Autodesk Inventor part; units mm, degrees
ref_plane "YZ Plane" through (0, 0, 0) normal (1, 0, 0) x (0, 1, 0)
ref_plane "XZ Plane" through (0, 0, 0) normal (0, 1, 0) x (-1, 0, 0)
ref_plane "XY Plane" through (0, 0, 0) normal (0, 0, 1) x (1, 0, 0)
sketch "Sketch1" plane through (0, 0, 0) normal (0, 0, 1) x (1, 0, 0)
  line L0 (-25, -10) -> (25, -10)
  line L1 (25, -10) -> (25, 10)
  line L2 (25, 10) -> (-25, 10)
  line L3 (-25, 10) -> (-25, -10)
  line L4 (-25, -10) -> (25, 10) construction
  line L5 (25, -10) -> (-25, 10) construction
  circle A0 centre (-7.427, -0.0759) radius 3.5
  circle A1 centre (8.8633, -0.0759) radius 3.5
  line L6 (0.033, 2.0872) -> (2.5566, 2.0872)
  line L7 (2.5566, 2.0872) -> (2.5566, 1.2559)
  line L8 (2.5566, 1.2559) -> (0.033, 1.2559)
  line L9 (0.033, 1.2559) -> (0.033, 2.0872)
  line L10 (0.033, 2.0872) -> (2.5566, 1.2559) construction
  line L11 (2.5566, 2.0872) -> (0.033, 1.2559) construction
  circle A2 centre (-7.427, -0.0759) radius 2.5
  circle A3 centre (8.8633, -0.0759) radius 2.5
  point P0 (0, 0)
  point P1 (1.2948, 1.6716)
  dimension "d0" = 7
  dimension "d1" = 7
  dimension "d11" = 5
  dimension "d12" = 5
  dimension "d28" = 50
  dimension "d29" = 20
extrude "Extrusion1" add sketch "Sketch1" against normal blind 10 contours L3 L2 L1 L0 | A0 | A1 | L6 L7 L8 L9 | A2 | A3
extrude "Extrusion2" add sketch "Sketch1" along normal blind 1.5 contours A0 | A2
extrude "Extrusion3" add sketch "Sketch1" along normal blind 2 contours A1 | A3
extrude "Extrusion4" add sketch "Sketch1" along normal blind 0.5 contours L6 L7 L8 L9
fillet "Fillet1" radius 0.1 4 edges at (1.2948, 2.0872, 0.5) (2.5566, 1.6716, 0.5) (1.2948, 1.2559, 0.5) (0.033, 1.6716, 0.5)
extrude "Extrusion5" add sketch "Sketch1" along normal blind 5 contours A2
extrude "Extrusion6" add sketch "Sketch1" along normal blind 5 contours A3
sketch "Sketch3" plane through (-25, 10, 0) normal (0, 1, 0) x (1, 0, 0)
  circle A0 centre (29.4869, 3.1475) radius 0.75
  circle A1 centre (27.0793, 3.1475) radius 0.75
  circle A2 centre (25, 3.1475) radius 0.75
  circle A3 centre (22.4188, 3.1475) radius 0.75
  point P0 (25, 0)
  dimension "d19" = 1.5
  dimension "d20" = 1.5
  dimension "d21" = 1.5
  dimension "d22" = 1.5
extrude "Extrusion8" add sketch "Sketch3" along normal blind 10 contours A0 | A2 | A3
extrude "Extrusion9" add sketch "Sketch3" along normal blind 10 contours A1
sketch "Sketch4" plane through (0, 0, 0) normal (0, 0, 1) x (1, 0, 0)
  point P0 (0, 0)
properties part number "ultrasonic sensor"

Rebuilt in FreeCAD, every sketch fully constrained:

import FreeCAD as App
import Part
import Sketcher

V = App.Vector


def edges_at(feature, points):
    """Names of the edges that pass closest to the given points."""
    edges = feature.Shape.Edges
    near = lambda p: min(range(len(edges)), key=lambda i: edges[i].distToShape(Part.Vertex(*p))[0])
    return sorted({f"Edge{near(p) + 1}" for p in points})

doc = App.newDocument("Part")
body = doc.addObject("PartDesign::Body", "Body")

# Sketch on XY plane
sketch1 = doc.addObject("Sketcher::SketchObject", "Sketch")
body.addObject(sketch1)
sketch1.AttachmentSupport = (doc.XY_Plane, [""])
sketch1.MapMode = "FlatFace"
sketch1.addGeometry(Part.LineSegment(V(-25, 10, 0), V(-25, -10, 0)), False)
sketch1.addGeometry(Part.LineSegment(V(-25, -10, 0), V(25, -10, 0)), False)
sketch1.addGeometry(Part.LineSegment(V(25, -10, 0), V(25, 10, 0)), False)
sketch1.addGeometry(Part.LineSegment(V(25, 10, 0), V(-25, 10, 0)), False)
sketch1.addConstraint(Sketcher.Constraint("Coincident", 0, 2, 1, 1))
sketch1.addConstraint(Sketcher.Constraint("Coincident", 1, 2, 2, 1))
sketch1.addConstraint(Sketcher.Constraint("Coincident", 2, 2, 3, 1))
sketch1.addConstraint(Sketcher.Constraint("Coincident", 3, 2, 0, 1))
sketch1.addConstraint(Sketcher.Constraint("Vertical", 0))
sketch1.addConstraint(Sketcher.Constraint("Horizontal", 1))
sketch1.addConstraint(Sketcher.Constraint("Vertical", 2))
sketch1.addConstraint(Sketcher.Constraint("Horizontal", 3))
sketch1.addConstraint(Sketcher.Constraint("Symmetric", 0, 2, 2, 2, -1, 1))
sketch1.addConstraint(Sketcher.Constraint("DistanceX", 1, 1, 1, 2, 50.0))
sketch1.addConstraint(Sketcher.Constraint("DistanceY", 0, 2, 0, 1, 20.0))
pad1 = doc.addObject("PartDesign::Pad", "Pad")
body.addObject(pad1)
pad1.Profile = sketch1
pad1.Length = 10
pad1.Reversed = True

# Sketch on XY plane
sketch2 = doc.addObject("Sketcher::SketchObject", "Sketch001")
body.addObject(sketch2)
sketch2.AttachmentSupport = (doc.XY_Plane, [""])
sketch2.MapMode = "FlatFace"
sketch2.addGeometry(Part.Circle(V(-7.427, -0.0759, 0), V(0, 0, 1), 3.5), False)
sketch2.addConstraint(Sketcher.Constraint("Diameter", 0, 7.0))
sketch2.addConstraint(Sketcher.Constraint("DistanceX", 0, 3, -1, 1, 7.427))
sketch2.addConstraint(Sketcher.Constraint("DistanceY", 0, 3, -1, 1, 0.076))
pad2 = doc.addObject("PartDesign::Pad", "Pad001")
body.addObject(pad2)
pad2.Profile = sketch2
pad2.Length = 1.5

# Sketch on XY plane
sketch3 = doc.addObject("Sketcher::SketchObject", "Sketch002")
body.addObject(sketch3)
sketch3.AttachmentSupport = (doc.XY_Plane, [""])
sketch3.MapMode = "FlatFace"
sketch3.addGeometry(Part.Circle(V(8.8633, -0.0759, 0), V(0, 0, 1), 3.5), False)
sketch3.addConstraint(Sketcher.Constraint("Diameter", 0, 7.0))
sketch3.addConstraint(Sketcher.Constraint("DistanceY", 0, 3, -1, 1, 0.076))
sketch3.addConstraint(Sketcher.Constraint("DistanceX", -1, 1, 0, 3, 8.8633))
pad3 = doc.addObject("PartDesign::Pad", "Pad002")
body.addObject(pad3)
pad3.Profile = sketch3
pad3.Length = 2

# Sketch on XY plane
sketch4 = doc.addObject("Sketcher::SketchObject", "Sketch003")
body.addObject(sketch4)
sketch4.AttachmentSupport = (doc.XY_Plane, [""])
sketch4.MapMode = "FlatFace"
sketch4.addGeometry(Part.LineSegment(V(2.5566, 2.0872, 0), V(0.033, 2.0872, 0)), False)
sketch4.addGeometry(Part.LineSegment(V(0.033, 2.0872, 0), V(0.033, 1.2559, 0)), False)
sketch4.addGeometry(Part.LineSegment(V(0.033, 1.2559, 0), V(2.5566, 1.2559, 0)), False)
sketch4.addGeometry(Part.LineSegment(V(2.5566, 1.2559, 0), V(2.5566, 2.0872, 0)), False)
sketch4.addConstraint(Sketcher.Constraint("Coincident", 0, 2, 1, 1))
sketch4.addConstraint(Sketcher.Constraint("Coincident", 1, 2, 2, 1))
sketch4.addConstraint(Sketcher.Constraint("Coincident", 2, 2, 3, 1))
sketch4.addConstraint(Sketcher.Constraint("Coincident", 3, 2, 0, 1))
sketch4.addConstraint(Sketcher.Constraint("Horizontal", 0))
sketch4.addConstraint(Sketcher.Constraint("Vertical", 1))
sketch4.addConstraint(Sketcher.Constraint("Horizontal", 2))
sketch4.addConstraint(Sketcher.Constraint("Vertical", 3))
sketch4.addConstraint(Sketcher.Constraint("DistanceX", 0, 2, 0, 1, 2.5236))
sketch4.addConstraint(Sketcher.Constraint("DistanceY", 1, 2, 1, 1, 0.8313))
sketch4.addConstraint(Sketcher.Constraint("DistanceX", -1, 1, 0, 2, 0.033))
sketch4.addConstraint(Sketcher.Constraint("DistanceY", -1, 1, 1, 2, 1.256))
pad4 = doc.addObject("PartDesign::Pad", "Pad003")
body.addObject(pad4)
pad4.Profile = sketch4
pad4.Length = 0.5
doc.recompute()

fillet = doc.addObject("PartDesign::Fillet", "Fillet")
body.addObject(fillet)
fillet.Base = (pad4, edges_at(pad4, [
    (1.295, 2.087, 0.5),
    (2.557, 1.672, 0.5),
    (1.295, 1.256, 0.5),
    (0.033, 1.672, 0.5),
]))
fillet.Radius = 0.1

# Sketch on XY plane
sketch5 = doc.addObject("Sketcher::SketchObject", "Sketch004")
body.addObject(sketch5)
sketch5.AttachmentSupport = (doc.XY_Plane, [""])
sketch5.MapMode = "FlatFace"
sketch5.addGeometry(Part.Circle(V(-7.427, -0.0759, 0), V(0, 0, 1), 2.5), False)
sketch5.addConstraint(Sketcher.Constraint("Diameter", 0, 5.0))
sketch5.addConstraint(Sketcher.Constraint("DistanceX", 0, 3, -1, 1, 7.427))
sketch5.addConstraint(Sketcher.Constraint("DistanceY", 0, 3, -1, 1, 0.076))
pad5 = doc.addObject("PartDesign::Pad", "Pad004")
body.addObject(pad5)
pad5.Profile = sketch5
pad5.Length = 5

# Sketch on XY plane
sketch6 = doc.addObject("Sketcher::SketchObject", "Sketch005")
body.addObject(sketch6)
sketch6.AttachmentSupport = (doc.XY_Plane, [""])
sketch6.MapMode = "FlatFace"
sketch6.addGeometry(Part.Circle(V(8.8633, -0.0759, 0), V(0, 0, 1), 2.5), False)
sketch6.addConstraint(Sketcher.Constraint("Diameter", 0, 5.0))
sketch6.addConstraint(Sketcher.Constraint("DistanceY", 0, 3, -1, 1, 0.076))
sketch6.addConstraint(Sketcher.Constraint("DistanceX", -1, 1, 0, 3, 8.8633))
pad6 = doc.addObject("PartDesign::Pad", "Pad005")
body.addObject(pad6)
pad6.Profile = sketch6
pad6.Length = 5

# Sketch on XZ plane
sketch7 = doc.addObject("Sketcher::SketchObject", "Sketch006")
body.addObject(sketch7)
sketch7.AttachmentSupport = (doc.XZ_Plane, [""])
sketch7.MapMode = "FlatFace"
sketch7.AttachmentOffset = App.Placement(V(0, 0, -10), App.Rotation())
sketch7.addGeometry(Part.Circle(V(4.4869, -3.1475, 0), V(0, 0, 1), 0.75), False)
sketch7.addGeometry(Part.Circle(V(0, -3.1475, 0), V(0, 0, 1), 0.75), False)
sketch7.addGeometry(Part.Circle(V(-2.5812, -3.1475, 0), V(0, 0, 1), 0.75), False)
sketch7.addConstraint(Sketcher.Constraint("Equal", 0, 1))
sketch7.addConstraint(Sketcher.Constraint("Equal", 1, 2))
sketch7.addConstraint(Sketcher.Constraint("PointOnObject", 1, 3, -2))
sketch7.addConstraint(Sketcher.Constraint("Horizontal", 0, 3, 1, 3))
sketch7.addConstraint(Sketcher.Constraint("Horizontal", 1, 3, 2, 3))
sketch7.addConstraint(Sketcher.Constraint("Diameter", 0, 1.5))
sketch7.addConstraint(Sketcher.Constraint("DistanceX", -1, 1, 0, 3, 4.487))
sketch7.addConstraint(Sketcher.Constraint("DistanceX", 2, 3, 0, 3, 7.068))
sketch7.addConstraint(Sketcher.Constraint("DistanceY", 0, 3, -1, 1, 3.1475))
pad7 = doc.addObject("PartDesign::Pad", "Pad006")
body.addObject(pad7)
pad7.Profile = sketch7
pad7.Length = 10
pad7.Reversed = True

# Sketch on XZ plane
sketch8 = doc.addObject("Sketcher::SketchObject", "Sketch007")
body.addObject(sketch8)
sketch8.AttachmentSupport = (doc.XZ_Plane, [""])
sketch8.MapMode = "FlatFace"
sketch8.AttachmentOffset = App.Placement(V(0, 0, -10), App.Rotation())
sketch8.addGeometry(Part.Circle(V(2.0793, -3.1475, 0), V(0, 0, 1), 0.75), False)
sketch8.addConstraint(Sketcher.Constraint("Diameter", 0, 1.5))
sketch8.addConstraint(Sketcher.Constraint("DistanceX", -1, 1, 0, 3, 2.0793))
sketch8.addConstraint(Sketcher.Constraint("DistanceY", 0, 3, -1, 1, 3.1475))
pad8 = doc.addObject("PartDesign::Pad", "Pad007")
body.addObject(pad8)
pad8.Profile = sketch8
pad8.Length = 10
pad8.Reversed = True

doc.recompute()
